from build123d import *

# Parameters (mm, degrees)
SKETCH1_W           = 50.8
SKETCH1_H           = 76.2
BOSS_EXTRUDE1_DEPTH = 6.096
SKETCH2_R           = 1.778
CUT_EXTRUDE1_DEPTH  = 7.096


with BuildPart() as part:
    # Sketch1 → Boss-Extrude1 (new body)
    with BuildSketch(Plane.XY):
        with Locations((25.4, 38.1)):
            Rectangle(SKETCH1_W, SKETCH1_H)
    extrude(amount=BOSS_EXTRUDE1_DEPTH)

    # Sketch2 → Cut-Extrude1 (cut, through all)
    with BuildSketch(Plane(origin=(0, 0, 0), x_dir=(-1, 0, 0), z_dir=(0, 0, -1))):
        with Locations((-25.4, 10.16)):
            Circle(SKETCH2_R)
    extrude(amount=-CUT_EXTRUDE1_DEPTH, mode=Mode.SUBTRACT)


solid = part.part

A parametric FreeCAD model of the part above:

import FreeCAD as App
import Part
import Sketcher

V = App.Vector
Q = App.Units.Quantity


def add_polygon(sketch, points):
    """Adds a closed chain of lines whose ends are joined by coincident constraints."""
    first, n = sketch.GeometryCount, len(points)
    for a, b in zip(points, points[1:] + points[:1]):
        sketch.addGeometry(Part.LineSegment(App.Vector(*a, 0), App.Vector(*b, 0)), False)
    for i in range(n):
        sketch.addConstraint(Sketcher.Constraint("Coincident", first + i, 2, first + (i + 1) % n, 1))

doc = App.newDocument("Part")
body = doc.addObject("PartDesign::Body", "Body")

# Sketch on XY plane
sketch1 = body.newObject("Sketcher::SketchObject", "Sketch")
sketch1.AttachmentSupport = (doc.getObject("XY_Plane"), [""])
sketch1.MapMode = "FlatFace"
add_polygon(sketch1, [(0, 76), (0, 0), (51, 0), (51, 76)])  # lines 0-3
sketch1.addConstraint([
    Sketcher.Constraint("Vertical", 0),
    Sketcher.Constraint("Horizontal", 1),
    Sketcher.Constraint("Vertical", 2),
    Sketcher.Constraint("Horizontal", 3),
    Sketcher.Constraint("Coincident", 0, 2, -1, 1),
    Sketcher.Constraint("DistanceX", 1, 1, 1, 2, Q("2 in")),
    Sketcher.Constraint("DistanceY", 0, 2, 0, 1, Q("3 in")),
])
pad1 = body.newObject("PartDesign::Pad", "Pad")
pad1.Profile = sketch1
pad1.Length = Q("0.24 in")

# Sketch on XY plane
sketch2 = body.newObject("Sketcher::SketchObject", "Sketch001")
sketch2.AttachmentSupport = (doc.getObject("XY_Plane"), [""])
sketch2.MapMode = "FlatFace"
sketch2.addGeometry(Part.Circle(V(25.4, 10.2, 0), V(0, 0, 1), 1.8), False)
sketch2.addConstraint([
    Sketcher.Constraint("Diameter", 0, Q("0.14 in")),
    Sketcher.Constraint("DistanceX", -1, 1, 0, 3, Q("1 in")),
    Sketcher.Constraint("DistanceY", -1, 1, 0, 3, Q("0.4 in")),
])
pocket1 = body.newObject("PartDesign::Pocket", "Pocket")
pocket1.Profile = sketch2
pocket1.Type = "ThroughAll"
pocket1.Reversed = True

doc.recompute()
